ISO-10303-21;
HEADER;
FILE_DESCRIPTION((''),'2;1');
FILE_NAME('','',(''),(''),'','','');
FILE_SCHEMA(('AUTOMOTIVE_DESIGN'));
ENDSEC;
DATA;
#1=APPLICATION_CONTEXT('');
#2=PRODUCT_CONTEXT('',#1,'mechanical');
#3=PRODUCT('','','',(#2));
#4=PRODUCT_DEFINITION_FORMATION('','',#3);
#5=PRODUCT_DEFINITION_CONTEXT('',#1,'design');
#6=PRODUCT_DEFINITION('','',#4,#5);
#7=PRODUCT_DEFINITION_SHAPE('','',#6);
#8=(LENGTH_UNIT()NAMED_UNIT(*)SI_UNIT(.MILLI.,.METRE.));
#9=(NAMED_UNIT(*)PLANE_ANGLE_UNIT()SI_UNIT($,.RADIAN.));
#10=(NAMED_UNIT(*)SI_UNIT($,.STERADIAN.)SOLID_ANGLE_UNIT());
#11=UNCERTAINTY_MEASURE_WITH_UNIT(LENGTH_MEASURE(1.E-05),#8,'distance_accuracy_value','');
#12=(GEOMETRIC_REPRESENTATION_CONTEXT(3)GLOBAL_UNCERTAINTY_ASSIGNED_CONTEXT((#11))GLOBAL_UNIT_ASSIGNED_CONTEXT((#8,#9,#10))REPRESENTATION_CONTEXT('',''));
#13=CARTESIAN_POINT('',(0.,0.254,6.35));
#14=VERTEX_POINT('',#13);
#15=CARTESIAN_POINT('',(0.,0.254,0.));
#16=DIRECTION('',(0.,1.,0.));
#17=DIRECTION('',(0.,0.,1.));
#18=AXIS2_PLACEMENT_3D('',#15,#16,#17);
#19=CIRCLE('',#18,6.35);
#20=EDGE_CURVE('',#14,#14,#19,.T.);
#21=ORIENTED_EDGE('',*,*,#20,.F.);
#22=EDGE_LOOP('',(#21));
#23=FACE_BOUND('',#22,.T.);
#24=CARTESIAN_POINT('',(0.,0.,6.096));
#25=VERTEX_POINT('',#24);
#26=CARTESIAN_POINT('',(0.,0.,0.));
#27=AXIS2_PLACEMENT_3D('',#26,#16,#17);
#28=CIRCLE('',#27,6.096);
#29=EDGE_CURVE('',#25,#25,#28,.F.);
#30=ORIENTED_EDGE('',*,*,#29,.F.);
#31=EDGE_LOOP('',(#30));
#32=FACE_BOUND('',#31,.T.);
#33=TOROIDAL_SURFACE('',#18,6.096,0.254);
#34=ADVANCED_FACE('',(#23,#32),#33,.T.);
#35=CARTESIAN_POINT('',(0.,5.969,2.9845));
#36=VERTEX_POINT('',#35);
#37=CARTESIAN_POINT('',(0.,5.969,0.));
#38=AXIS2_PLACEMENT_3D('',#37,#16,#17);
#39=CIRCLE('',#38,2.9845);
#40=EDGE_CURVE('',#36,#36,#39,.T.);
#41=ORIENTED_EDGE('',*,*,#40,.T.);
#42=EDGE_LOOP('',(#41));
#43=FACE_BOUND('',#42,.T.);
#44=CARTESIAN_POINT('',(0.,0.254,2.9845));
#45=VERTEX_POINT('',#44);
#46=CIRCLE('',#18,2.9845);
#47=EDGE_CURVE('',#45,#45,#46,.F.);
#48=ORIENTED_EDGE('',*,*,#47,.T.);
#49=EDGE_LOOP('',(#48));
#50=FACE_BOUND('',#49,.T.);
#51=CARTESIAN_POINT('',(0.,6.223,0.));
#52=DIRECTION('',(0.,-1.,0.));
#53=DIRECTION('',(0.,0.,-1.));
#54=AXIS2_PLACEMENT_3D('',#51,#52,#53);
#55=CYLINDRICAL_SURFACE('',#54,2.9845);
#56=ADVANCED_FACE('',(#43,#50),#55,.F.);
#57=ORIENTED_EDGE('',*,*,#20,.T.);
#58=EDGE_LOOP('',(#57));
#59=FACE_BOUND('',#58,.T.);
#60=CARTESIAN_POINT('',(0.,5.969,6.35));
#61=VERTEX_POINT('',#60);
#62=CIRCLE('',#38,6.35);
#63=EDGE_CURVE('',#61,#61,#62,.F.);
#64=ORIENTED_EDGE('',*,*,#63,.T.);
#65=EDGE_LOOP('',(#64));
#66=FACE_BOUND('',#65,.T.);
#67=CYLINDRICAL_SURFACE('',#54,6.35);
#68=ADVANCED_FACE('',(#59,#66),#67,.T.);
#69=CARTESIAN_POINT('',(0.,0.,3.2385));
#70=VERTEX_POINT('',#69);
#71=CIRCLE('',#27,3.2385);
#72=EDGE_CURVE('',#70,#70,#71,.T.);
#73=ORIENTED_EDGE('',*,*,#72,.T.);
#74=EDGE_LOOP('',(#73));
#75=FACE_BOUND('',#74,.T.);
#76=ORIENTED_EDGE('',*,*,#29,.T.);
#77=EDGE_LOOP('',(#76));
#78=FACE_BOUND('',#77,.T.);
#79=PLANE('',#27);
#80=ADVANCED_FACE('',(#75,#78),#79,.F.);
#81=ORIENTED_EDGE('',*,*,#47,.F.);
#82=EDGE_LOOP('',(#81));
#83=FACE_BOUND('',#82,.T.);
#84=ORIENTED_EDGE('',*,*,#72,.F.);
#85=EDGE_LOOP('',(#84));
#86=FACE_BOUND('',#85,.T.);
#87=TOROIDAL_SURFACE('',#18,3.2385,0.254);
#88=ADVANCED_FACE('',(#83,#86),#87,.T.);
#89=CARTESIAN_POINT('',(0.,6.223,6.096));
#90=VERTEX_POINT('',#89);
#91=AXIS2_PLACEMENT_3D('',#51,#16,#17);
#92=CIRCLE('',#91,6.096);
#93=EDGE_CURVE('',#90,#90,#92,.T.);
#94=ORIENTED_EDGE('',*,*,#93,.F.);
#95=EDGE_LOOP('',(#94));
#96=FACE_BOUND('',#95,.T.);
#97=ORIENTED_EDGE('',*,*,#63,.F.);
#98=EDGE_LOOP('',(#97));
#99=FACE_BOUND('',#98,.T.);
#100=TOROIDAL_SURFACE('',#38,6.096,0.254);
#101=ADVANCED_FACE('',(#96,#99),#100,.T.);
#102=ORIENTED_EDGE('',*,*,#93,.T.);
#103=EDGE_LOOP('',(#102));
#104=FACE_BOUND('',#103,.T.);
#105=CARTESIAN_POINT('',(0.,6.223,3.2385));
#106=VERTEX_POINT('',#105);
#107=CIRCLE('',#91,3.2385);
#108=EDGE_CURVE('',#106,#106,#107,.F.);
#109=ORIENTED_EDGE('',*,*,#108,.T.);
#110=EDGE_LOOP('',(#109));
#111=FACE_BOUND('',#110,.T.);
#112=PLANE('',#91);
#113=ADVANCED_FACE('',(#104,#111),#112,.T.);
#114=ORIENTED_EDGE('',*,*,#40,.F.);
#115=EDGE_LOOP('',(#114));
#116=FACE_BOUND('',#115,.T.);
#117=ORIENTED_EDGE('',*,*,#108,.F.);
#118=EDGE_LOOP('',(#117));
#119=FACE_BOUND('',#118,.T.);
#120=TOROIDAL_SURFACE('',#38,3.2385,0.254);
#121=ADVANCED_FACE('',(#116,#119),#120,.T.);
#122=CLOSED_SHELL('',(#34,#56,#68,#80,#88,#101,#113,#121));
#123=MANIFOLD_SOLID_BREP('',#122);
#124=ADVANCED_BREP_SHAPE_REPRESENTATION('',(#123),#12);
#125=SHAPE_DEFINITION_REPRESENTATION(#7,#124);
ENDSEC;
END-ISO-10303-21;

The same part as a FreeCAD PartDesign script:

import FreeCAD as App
import Part
import Sketcher

V = App.Vector
Q = App.Units.Quantity


def edges_at(feature, points):
    """Names of the edges that pass closest to the given points."""
    edges = feature.Shape.Edges
    near = lambda p: min(range(len(edges)), key=lambda i: edges[i].distToShape(Part.Vertex(*p))[0])
    return sorted({f"Edge{near(p) + 1}" for p in points})

doc = App.newDocument("Part")
body = doc.addObject("PartDesign::Body", "Body")

# Sketch on XZ plane
sketch1 = body.newObject("Sketcher::SketchObject", "Sketch")
sketch1.AttachmentSupport = (doc.getObject("XZ_Plane"), [""])
sketch1.MapMode = "FlatFace"
sketch1.addGeometry(Part.Circle(V(0, 0, 0), V(0, 0, 1), 6.3), False)
sketch1.addGeometry(Part.Circle(V(0, 0, 0), V(0, 0, 1), 3), False)
sketch1.addConstraint(Sketcher.Constraint("Coincident", 0, 3, -1, 1))
sketch1.addConstraint(Sketcher.Constraint("Coincident", 1, 3, -1, 1))
sketch1.addConstraint(Sketcher.Constraint("Diameter", 0, Q("0.5 in")))
sketch1.addConstraint(Sketcher.Constraint("Diameter", 1, Q("0.235 in")))
pad1 = body.newObject("PartDesign::Pad", "Pad")
pad1.Profile = sketch1
pad1.Length = Q("0.245 in")
pad1.Reversed = True
doc.recompute()

fillet = body.newObject("PartDesign::Fillet", "Fillet")
fillet.Base = (pad1, edges_at(pad1, [
    (-6.35, 0, 0),
    (-6.35, 6.223, 0),
    (-2.985, 0, 0),
    (-2.985, 6.223, 0),
]))
fillet.Radius = Q("0.01 in")

doc.recompute()
